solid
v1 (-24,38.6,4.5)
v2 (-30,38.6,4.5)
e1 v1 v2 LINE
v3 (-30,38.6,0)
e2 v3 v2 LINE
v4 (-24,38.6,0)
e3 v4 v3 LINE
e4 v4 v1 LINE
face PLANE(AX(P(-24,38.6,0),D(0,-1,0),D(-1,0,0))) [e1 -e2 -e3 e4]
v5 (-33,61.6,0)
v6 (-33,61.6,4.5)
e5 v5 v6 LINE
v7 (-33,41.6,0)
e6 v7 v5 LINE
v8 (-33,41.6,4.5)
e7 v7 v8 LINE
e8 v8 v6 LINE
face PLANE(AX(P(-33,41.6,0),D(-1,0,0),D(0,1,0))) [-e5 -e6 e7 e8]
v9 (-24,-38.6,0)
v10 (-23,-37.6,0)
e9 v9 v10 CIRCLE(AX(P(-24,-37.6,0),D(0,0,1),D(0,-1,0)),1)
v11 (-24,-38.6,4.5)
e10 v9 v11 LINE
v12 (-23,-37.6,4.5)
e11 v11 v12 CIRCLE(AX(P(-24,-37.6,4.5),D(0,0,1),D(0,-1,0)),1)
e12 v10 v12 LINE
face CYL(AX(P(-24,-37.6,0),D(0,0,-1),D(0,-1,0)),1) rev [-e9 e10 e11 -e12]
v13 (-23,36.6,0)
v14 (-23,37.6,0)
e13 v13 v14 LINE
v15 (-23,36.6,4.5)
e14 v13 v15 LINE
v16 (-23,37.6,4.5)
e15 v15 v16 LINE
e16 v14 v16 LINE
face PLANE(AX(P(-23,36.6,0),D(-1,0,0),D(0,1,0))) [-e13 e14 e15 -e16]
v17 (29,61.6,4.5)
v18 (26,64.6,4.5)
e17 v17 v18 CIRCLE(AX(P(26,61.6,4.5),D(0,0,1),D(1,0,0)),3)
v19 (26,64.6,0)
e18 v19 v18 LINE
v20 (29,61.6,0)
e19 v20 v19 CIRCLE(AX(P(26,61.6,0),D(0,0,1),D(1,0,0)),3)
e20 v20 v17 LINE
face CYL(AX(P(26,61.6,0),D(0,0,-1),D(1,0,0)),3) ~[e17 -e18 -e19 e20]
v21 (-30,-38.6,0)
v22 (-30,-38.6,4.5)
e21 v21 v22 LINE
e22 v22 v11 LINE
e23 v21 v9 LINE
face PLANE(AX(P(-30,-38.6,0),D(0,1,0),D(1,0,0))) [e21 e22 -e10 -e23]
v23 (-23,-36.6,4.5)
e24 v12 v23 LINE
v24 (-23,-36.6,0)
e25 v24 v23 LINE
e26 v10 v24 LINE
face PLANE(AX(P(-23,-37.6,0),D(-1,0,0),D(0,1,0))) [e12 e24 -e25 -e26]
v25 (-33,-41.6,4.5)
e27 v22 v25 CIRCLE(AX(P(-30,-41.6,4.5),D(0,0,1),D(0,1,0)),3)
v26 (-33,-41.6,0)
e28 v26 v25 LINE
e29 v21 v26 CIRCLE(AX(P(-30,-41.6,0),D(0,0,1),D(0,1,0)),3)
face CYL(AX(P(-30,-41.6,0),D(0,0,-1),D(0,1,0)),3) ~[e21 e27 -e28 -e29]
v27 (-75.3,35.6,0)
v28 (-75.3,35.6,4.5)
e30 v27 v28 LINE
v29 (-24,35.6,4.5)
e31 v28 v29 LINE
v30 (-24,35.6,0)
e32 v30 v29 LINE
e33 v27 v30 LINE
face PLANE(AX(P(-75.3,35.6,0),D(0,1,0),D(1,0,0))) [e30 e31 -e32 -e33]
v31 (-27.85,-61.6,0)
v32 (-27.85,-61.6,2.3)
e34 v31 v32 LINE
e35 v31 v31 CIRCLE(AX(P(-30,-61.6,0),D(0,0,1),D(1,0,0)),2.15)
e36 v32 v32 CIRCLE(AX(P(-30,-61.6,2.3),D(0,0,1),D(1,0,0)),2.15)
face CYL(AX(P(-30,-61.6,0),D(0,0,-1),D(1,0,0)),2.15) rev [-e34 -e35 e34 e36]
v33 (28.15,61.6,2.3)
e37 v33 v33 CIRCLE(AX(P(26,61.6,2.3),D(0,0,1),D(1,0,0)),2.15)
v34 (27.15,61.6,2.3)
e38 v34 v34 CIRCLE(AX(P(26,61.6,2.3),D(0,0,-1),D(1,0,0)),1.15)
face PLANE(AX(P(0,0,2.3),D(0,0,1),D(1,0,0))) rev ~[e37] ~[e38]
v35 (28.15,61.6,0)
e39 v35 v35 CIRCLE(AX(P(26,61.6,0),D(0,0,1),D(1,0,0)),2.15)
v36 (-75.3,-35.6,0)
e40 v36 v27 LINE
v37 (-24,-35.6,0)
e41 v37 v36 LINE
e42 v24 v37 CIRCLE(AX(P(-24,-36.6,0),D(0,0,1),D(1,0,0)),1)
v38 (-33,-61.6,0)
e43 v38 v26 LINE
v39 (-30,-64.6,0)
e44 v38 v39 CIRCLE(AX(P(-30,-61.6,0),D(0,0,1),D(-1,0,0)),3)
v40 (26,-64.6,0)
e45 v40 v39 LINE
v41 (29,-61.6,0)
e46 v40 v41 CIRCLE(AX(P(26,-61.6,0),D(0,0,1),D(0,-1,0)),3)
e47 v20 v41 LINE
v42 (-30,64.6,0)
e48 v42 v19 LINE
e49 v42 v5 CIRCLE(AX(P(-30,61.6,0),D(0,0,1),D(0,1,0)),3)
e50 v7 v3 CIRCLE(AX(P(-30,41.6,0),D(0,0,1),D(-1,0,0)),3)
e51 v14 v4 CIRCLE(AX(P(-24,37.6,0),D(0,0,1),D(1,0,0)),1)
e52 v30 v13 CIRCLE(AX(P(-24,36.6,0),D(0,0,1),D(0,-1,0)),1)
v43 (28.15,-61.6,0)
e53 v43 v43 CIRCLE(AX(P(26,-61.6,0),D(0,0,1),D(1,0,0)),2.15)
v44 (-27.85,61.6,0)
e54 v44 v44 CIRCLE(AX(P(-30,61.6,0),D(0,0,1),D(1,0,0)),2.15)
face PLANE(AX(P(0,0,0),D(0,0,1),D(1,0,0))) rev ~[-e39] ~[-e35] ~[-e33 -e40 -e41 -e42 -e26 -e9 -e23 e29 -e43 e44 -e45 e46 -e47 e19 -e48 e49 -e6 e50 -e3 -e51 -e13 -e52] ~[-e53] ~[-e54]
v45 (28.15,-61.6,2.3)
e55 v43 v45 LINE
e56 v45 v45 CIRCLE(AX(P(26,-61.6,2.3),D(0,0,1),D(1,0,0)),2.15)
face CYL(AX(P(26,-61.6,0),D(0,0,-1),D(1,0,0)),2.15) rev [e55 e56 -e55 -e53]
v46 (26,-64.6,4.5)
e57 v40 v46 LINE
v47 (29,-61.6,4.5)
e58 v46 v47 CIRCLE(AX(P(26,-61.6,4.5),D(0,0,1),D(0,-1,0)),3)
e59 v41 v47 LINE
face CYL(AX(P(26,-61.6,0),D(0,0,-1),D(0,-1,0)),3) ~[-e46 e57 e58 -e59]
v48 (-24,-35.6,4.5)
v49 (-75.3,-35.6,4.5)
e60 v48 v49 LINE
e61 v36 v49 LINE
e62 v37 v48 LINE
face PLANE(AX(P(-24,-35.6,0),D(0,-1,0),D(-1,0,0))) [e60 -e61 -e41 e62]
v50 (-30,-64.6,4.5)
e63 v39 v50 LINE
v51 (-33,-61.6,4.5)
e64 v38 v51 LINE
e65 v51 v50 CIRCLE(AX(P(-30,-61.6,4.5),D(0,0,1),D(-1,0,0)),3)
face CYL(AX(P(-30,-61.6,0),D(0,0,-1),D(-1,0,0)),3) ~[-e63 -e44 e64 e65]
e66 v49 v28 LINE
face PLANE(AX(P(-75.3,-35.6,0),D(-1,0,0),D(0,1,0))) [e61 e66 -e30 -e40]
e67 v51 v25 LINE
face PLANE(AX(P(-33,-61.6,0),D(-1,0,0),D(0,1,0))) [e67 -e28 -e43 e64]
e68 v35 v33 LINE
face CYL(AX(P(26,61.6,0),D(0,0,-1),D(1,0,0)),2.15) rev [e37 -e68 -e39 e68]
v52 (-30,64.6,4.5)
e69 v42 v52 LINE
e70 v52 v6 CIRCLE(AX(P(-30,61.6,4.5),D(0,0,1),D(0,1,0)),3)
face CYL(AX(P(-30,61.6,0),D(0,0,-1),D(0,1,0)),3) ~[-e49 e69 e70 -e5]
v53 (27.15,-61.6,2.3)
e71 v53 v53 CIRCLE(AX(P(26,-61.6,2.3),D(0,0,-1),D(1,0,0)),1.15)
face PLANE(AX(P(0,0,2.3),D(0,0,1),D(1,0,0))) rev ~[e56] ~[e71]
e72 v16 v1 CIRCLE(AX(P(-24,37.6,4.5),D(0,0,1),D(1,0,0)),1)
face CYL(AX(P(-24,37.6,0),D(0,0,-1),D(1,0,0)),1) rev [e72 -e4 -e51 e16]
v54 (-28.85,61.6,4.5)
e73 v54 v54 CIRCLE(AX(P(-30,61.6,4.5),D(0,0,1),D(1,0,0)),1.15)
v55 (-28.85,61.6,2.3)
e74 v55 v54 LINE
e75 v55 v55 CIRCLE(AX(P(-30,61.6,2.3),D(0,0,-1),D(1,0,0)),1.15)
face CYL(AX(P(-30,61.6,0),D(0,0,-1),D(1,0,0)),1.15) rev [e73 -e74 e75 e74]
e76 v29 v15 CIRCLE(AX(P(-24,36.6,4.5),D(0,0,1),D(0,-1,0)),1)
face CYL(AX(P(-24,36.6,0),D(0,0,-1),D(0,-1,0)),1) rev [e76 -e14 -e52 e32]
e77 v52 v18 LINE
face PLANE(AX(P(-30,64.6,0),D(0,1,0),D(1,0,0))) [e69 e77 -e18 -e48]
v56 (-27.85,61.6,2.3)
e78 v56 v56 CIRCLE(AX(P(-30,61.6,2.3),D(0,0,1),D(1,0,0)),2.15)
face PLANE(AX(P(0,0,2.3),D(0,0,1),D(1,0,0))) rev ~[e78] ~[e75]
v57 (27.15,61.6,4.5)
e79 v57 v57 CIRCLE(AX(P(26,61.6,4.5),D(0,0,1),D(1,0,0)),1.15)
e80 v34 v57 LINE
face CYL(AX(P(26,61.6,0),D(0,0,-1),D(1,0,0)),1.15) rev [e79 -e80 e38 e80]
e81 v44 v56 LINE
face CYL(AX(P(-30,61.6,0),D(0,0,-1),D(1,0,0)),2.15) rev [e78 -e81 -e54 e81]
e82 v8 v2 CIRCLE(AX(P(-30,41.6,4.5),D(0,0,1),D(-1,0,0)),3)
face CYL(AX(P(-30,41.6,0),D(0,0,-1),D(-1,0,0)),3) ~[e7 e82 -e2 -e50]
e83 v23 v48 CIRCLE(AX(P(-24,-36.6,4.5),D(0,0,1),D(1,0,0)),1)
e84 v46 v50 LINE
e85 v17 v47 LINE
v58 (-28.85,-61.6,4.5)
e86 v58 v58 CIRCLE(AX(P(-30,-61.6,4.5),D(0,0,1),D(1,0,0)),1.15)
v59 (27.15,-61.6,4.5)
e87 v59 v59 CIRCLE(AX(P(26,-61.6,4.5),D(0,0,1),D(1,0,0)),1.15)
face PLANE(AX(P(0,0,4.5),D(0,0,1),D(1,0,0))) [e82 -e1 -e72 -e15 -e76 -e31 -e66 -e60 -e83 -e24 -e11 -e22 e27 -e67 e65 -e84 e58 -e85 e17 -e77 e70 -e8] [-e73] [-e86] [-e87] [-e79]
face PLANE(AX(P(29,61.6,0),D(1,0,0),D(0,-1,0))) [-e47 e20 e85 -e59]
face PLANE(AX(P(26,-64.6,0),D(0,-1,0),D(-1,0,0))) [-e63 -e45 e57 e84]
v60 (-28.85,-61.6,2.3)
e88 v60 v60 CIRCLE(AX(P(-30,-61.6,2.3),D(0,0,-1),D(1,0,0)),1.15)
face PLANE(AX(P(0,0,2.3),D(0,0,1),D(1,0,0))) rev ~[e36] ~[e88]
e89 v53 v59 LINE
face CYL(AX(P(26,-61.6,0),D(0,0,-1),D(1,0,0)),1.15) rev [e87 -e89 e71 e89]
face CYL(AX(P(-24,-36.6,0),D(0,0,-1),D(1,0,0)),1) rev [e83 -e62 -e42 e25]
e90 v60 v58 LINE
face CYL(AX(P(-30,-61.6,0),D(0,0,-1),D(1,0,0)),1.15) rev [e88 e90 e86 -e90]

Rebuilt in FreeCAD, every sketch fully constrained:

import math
import FreeCAD as App
import Part
import Sketcher

V = App.Vector

doc = App.newDocument("Part")
params = doc.addObject("Spreadsheet::Sheet", "Params")
for row, (alias, value) in enumerate([
    ("sketch1_radius", "1 mm"),
    ("sketch1_radius2", "3 mm"),
    ("sketch1_width", "6 mm"),
    ("sketch1_width2", "56 mm"),
    ("sketch1_height", "1 mm"),
    ("pad1_length", "4.5 mm"),
    ("sketch2_diameter", "2.3 mm"),
    ("pocket1_length", "4.5 mm"),
    ("sketch3_diameter", "4.3 mm"),
    ("pocket2_length", "2.3 mm"),
], start=1):
    params.set(f"A{row}", alias)
    params.set(f"B{row}", "=" + value)
    params.setAlias(f"B{row}", alias)

body = doc.addObject("PartDesign::Body", "Body")

sketch1 = body.newObject("Sketcher::SketchObject", "Sketch")
sketch1.AttachmentSupport = (doc.getObject("XY_Plane"), [""])
sketch1.MapMode = "FlatFace"
sketch1.addGeometry([
    Part.LineSegment(V(-24, 35.6, 0), V(-75.3, 35.6, 0)),
    Part.LineSegment(V(-75.3, 35.6, 0), V(-75.3, -35.6, 0)),
    Part.LineSegment(V(-75.3, -35.6, 0), V(-24, -35.6, 0)),
    Part.ArcOfCircle(Part.Circle(V(-24, -36.6, 0), V(0, 0, 1), 1), math.radians(0), math.radians(90)),
    Part.LineSegment(V(-23, -36.6, 0), V(-23, -37.6, 0)),
    Part.ArcOfCircle(Part.Circle(V(-24, -37.6, 0), V(0, 0, 1), 1), math.radians(-90), math.radians(0)),
    Part.LineSegment(V(-24, -38.6, 0), V(-30, -38.6, 0)),
    Part.ArcOfCircle(Part.Circle(V(-30, -41.6, 0), V(0, 0, 1), 3), math.radians(90), math.radians(180)),
    Part.LineSegment(V(-33, -41.6, 0), V(-33, -61.6, 0)),
    Part.ArcOfCircle(Part.Circle(V(-30, -61.6, 0), V(0, 0, 1), 3), math.radians(180), math.radians(270)),
    Part.LineSegment(V(-30, -64.6, 0), V(26, -64.6, 0)),
    Part.ArcOfCircle(Part.Circle(V(26, -61.6, 0), V(0, 0, 1), 3), math.radians(-90), math.radians(0)),
    Part.LineSegment(V(29, -61.6, 0), V(29, 61.6, 0)),
    Part.ArcOfCircle(Part.Circle(V(26, 61.6, 0), V(0, 0, 1), 3), math.radians(0), math.radians(90)),
    Part.LineSegment(V(26, 64.6, 0), V(-30, 64.6, 0)),
    Part.ArcOfCircle(Part.Circle(V(-30, 61.6, 0), V(0, 0, 1), 3), math.radians(90), math.radians(180)),
    Part.LineSegment(V(-33, 61.6, 0), V(-33, 41.6, 0)),
    Part.ArcOfCircle(Part.Circle(V(-30, 41.6, 0), V(0, 0, 1), 3), math.radians(180), math.radians(270)),
    Part.LineSegment(V(-30, 38.6, 0), V(-24, 38.6, 0)),
    Part.ArcOfCircle(Part.Circle(V(-24, 37.6, 0), V(0, 0, 1), 1), math.radians(0), math.radians(90)),
    Part.LineSegment(V(-23, 37.6, 0), V(-23, 36.6, 0)),
    Part.ArcOfCircle(Part.Circle(V(-24, 36.6, 0), V(0, 0, 1), 1), math.radians(-90), math.radians(0)),
], False)
sketch1.addConstraint([
    Sketcher.Constraint("Coincident", 0, 2, 1, 1),
    Sketcher.Constraint("Coincident", 1, 2, 2, 1),
    Sketcher.Constraint("Tangent", 2, 2, 3, 2),
    Sketcher.Constraint("Tangent", 3, 1, 4, 1),
    Sketcher.Constraint("Tangent", 4, 2, 5, 2),
    Sketcher.Constraint("Tangent", 5, 1, 6, 1),
    Sketcher.Constraint("Tangent", 6, 2, 7, 1),
    Sketcher.Constraint("Tangent", 7, 2, 8, 1),
    Sketcher.Constraint("Tangent", 8, 2, 9, 1),
    Sketcher.Constraint("Tangent", 9, 2, 10, 1),
    Sketcher.Constraint("Tangent", 10, 2, 11, 1),
    Sketcher.Constraint("Tangent", 11, 2, 12, 1),
    Sketcher.Constraint("Tangent", 12, 2, 13, 1),
    Sketcher.Constraint("Tangent", 13, 2, 14, 1),
    Sketcher.Constraint("Tangent", 14, 2, 15, 1),
    Sketcher.Constraint("Tangent", 15, 2, 16, 1),
    Sketcher.Constraint("Tangent", 16, 2, 17, 1),
    Sketcher.Constraint("Tangent", 17, 2, 18, 1),
    Sketcher.Constraint("Tangent", 18, 2, 19, 2),
    Sketcher.Constraint("Tangent", 19, 1, 20, 1),
    Sketcher.Constraint("Tangent", 20, 2, 21, 2),
    Sketcher.Constraint("Tangent", 21, 1, 0, 1),
    Sketcher.Constraint("Horizontal", 0),
    Sketcher.Constraint("Vertical", 1),
    Sketcher.Constraint("Horizontal", 2),
    Sketcher.Constraint("Vertical", 4),
    Sketcher.Constraint("Horizontal", 6),
    Sketcher.Constraint("Vertical", 8),
    Sketcher.Constraint("Horizontal", 10),
    Sketcher.Constraint("Vertical", 12),
    Sketcher.Constraint("Horizontal", 14),
    Sketcher.Constraint("Vertical", 16),
    Sketcher.Constraint("Horizontal", 18),
    Sketcher.Constraint("Vertical", 20),
    Sketcher.Constraint("Equal", 3, 5),
    Sketcher.Constraint("Equal", 7, 9),
    Sketcher.Constraint("Equal", 9, 11),
    Sketcher.Constraint("Equal", 11, 13),
    Sketcher.Constraint("Equal", 13, 15),
    Sketcher.Constraint("Equal", 15, 17),
    Sketcher.Constraint("Equal", 5, 19),
    Sketcher.Constraint("Equal", 19, 21),
    Sketcher.Constraint("Symmetric", 9, 3, 15, 3, -1),
    Sketcher.Constraint("Symmetric", 5, 3, 19, 3, -1),
    Sketcher.Constraint("Equal", 4, 20),
    Sketcher.Constraint("Radius", 3, 1.0),
    Sketcher.Constraint("Radius", 7, 3.0),
    Sketcher.Constraint("DistanceX", 6, 2, 6, 1, 6.0),
    Sketcher.Constraint("DistanceX", 10, 1, 10, 2, 56.0),
    Sketcher.Constraint("DistanceY", 4, 2, 4, 1, 1.0),
    Sketcher.Constraint("DistanceY", 8, 2, 8, 1, 20.0),
    Sketcher.Constraint("DistanceX", 0, 2, 0, 1, 51.3),
    Sketcher.Constraint("DistanceY", 1, 2, 1, 1, 71.2),
    Sketcher.Constraint("DistanceX", 3, 3, -1, 1, 24.0),
])
sketch1.setExpression("Constraints[45]", "Params.sketch1_radius")
sketch1.setExpression("Constraints[46]", "Params.sketch1_radius2")
sketch1.setExpression("Constraints[47]", "Params.sketch1_width")
sketch1.setExpression("Constraints[48]", "Params.sketch1_width2")
sketch1.setExpression("Constraints[49]", "Params.sketch1_height")
pad1 = body.newObject("PartDesign::Pad", "Pad")
pad1.Profile = sketch1
pad1.setExpression("Length", "Params.pad1_length")

sketch2 = body.newObject("Sketcher::SketchObject", "Sketch001")
sketch2.AttachmentSupport = (doc.getObject("XY_Plane"), [""])
sketch2.MapMode = "FlatFace"
sketch2.addGeometry([
    Part.Circle(V(-30, -61.6, 0), V(0, 0, 1), 1.1),
    Part.Circle(V(26, -61.6, 0), V(0, 0, 1), 1.1),
    Part.Circle(V(-30, 61.6, 0), V(0, 0, 1), 1.1),
    Part.Circle(V(26, 61.6, 0), V(0, 0, 1), 1.1),
], False)
sketch2.addConstraint([
    Sketcher.Constraint("Equal", 0, 1),
    Sketcher.Constraint("Equal", 1, 2),
    Sketcher.Constraint("Equal", 2, 3),
    Sketcher.Constraint("Symmetric", 0, 3, 2, 3, -1),
    Sketcher.Constraint("Symmetric", 1, 3, 3, 3, -1),
    Sketcher.Constraint("Horizontal", 0, 3, 1, 3),
    Sketcher.Constraint("Diameter", 0, 2.3),
    Sketcher.Constraint("DistanceX", 0, 3, -1, 1, 30.0),
    Sketcher.Constraint("DistanceX", -1, 1, 1, 3, 26.0),
    Sketcher.Constraint("DistanceY", 0, 3, -1, 1, 61.6),
])
sketch2.setExpression("Constraints[6]", "Params.sketch2_diameter")
pocket1 = body.newObject("PartDesign::Pocket", "Pocket")
pocket1.Profile = sketch2
pocket1.setExpression("Length", "Params.pocket1_length")
pocket1.Reversed = True

sketch3 = body.newObject("Sketcher::SketchObject", "Sketch002")
sketch3.AttachmentSupport = (doc.getObject("XY_Plane"), [""])
sketch3.MapMode = "FlatFace"
sketch3.addGeometry([
    Part.Circle(V(-30, -61.6, 0), V(0, 0, 1), 2.1),
    Part.Circle(V(26, -61.6, 0), V(0, 0, 1), 2.1),
    Part.Circle(V(-30, 61.6, 0), V(0, 0, 1), 2.1),
    Part.Circle(V(26, 61.6, 0), V(0, 0, 1), 2.1),
], False)
sketch3.addConstraint([
    Sketcher.Constraint("Equal", 0, 1),
    Sketcher.Constraint("Equal", 1, 2),
    Sketcher.Constraint("Equal", 2, 3),
    Sketcher.Constraint("Symmetric", 0, 3, 2, 3, -1),
    Sketcher.Constraint("Symmetric", 1, 3, 3, 3, -1),
    Sketcher.Constraint("Horizontal", 0, 3, 1, 3),
    Sketcher.Constraint("Diameter", 0, 4.3),
    Sketcher.Constraint("DistanceX", 0, 3, -1, 1, 30.0),
    Sketcher.Constraint("DistanceX", -1, 1, 1, 3, 26.0),
    Sketcher.Constraint("DistanceY", 0, 3, -1, 1, 61.6),
])
sketch3.setExpression("Constraints[6]", "Params.sketch3_diameter")
pocket2 = body.newObject("PartDesign::Pocket", "Pocket001")
pocket2.Profile = sketch3
pocket2.setExpression("Length", "Params.pocket2_length")
pocket2.Reversed = True

doc.recompute()
